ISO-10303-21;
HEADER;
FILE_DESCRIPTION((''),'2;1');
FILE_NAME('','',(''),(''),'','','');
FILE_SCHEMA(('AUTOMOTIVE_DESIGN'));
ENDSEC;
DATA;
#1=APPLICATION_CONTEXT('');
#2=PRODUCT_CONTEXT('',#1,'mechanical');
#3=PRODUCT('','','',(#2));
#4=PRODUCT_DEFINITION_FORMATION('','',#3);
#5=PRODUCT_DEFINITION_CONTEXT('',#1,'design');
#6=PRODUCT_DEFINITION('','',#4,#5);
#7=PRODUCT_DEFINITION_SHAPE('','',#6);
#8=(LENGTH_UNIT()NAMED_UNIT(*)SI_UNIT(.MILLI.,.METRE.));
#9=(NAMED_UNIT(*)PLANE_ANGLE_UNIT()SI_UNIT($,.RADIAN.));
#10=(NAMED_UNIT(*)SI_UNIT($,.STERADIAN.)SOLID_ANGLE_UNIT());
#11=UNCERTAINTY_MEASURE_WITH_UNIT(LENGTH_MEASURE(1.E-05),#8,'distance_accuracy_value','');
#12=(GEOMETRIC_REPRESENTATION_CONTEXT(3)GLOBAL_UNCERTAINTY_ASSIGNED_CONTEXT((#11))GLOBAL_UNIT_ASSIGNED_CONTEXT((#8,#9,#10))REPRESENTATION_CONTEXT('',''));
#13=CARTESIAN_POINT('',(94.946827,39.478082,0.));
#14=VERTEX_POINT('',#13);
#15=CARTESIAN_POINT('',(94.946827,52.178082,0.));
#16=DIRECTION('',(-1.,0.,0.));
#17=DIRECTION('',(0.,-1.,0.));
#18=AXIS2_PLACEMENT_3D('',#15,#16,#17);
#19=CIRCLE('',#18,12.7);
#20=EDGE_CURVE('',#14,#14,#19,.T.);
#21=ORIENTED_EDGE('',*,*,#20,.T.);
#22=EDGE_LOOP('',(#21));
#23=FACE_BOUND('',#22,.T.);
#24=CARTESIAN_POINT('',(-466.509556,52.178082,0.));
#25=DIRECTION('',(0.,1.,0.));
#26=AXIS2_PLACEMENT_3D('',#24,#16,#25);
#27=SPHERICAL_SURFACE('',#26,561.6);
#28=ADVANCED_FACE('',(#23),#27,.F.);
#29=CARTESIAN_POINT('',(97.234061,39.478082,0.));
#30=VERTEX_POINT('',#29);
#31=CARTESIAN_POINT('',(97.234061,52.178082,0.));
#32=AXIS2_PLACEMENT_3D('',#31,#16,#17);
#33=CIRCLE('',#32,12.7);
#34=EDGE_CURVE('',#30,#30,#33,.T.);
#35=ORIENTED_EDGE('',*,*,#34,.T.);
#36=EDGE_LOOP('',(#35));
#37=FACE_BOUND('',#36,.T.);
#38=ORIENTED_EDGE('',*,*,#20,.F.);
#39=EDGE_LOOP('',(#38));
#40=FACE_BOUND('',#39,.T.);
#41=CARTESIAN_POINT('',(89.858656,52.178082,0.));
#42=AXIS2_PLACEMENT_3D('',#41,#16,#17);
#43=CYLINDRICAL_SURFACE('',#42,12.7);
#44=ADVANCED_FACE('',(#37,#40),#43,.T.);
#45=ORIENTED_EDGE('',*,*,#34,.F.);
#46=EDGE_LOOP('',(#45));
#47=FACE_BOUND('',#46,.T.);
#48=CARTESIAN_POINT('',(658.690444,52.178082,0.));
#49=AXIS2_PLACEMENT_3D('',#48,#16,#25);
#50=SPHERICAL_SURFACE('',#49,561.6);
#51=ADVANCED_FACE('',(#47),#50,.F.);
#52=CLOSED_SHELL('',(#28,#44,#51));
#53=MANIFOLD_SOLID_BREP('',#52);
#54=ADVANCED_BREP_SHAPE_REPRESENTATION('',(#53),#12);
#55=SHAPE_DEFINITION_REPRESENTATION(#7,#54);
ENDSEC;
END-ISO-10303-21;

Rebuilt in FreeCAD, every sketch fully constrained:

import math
import FreeCAD as App
import Part
import Sketcher
from FreeCAD import Vector

doc = App.newDocument("Part")
body = doc.addObject("PartDesign::Body", "Body")

# Sketch on XY plane
sketch1 = body.newObject("Sketcher::SketchObject", "Sketch")
sketch1.AttachmentSupport = (doc.getObject("XY_Plane"), [""])
sketch1.MapMode = "FlatFace"
sketch1.addGeometry(Part.LineSegment(Vector(95.1, 52.2, 0), Vector(97.1, 52.2, 0)), False)
sketch1.addGeometry(Part.ArcOfCircle(Part.Circle(Vector(658.7, 52.2, 0), Vector(0, 0, 1), 561.6), math.radians(178.7), math.radians(180)), False)
sketch1.addGeometry(Part.LineSegment(Vector(97.2, 64.9, 0), Vector(94.9, 64.9, 0)), False)
sketch1.addGeometry(Part.ArcOfCircle(Part.Circle(Vector(-466.5, 52.2, 0), Vector(0, 0, 1), 561.6), math.radians(0), math.radians(1.3)), False)
sketch1.addGeometry(Part.LineSegment(Vector(-466.5, 52.2, 0), Vector(658.7, 52.2, 0)), True)  # axis
sketch1.addConstraint(Sketcher.Constraint("Coincident", 0, 2, 1, 2))
sketch1.addConstraint(Sketcher.Constraint("Coincident", 1, 1, 2, 1))
sketch1.addConstraint(Sketcher.Constraint("Coincident", 2, 2, 3, 2))
sketch1.addConstraint(Sketcher.Constraint("Coincident", 3, 1, 0, 1))
sketch1.addConstraint(Sketcher.Constraint("Horizontal", 0))
sketch1.addConstraint(Sketcher.Constraint("Horizontal", 2))
sketch1.addConstraint(Sketcher.Constraint("Horizontal", 4))
sketch1.addConstraint(Sketcher.Constraint("Coincident", 4, 1, 3, 3))
sketch1.addConstraint(Sketcher.Constraint("Coincident", 4, 2, 1, 3))
sketch1.addConstraint(Sketcher.Constraint("Horizontal", 3, 3, 0, 2))
sketch1.addConstraint(Sketcher.Constraint("DistanceX", 0, 1, 0, 2, 2.000001))
sketch1.addConstraint(Sketcher.Constraint("DistanceY", 0, 2, 2, 2, 12.7))
sketch1.addConstraint(Sketcher.Constraint("Radius", 1, 561.600012))
sketch1.addConstraint(Sketcher.Constraint("Radius", 3, 561.600004))
sketch1.addConstraint(Sketcher.Constraint("DistanceX", 3, 3, -1, 1, 466.50956))
sketch1.addConstraint(Sketcher.Constraint("DistanceY", -1, 1, 1, 3, 52.178082))
revolution = body.newObject("PartDesign::Revolution", "Revolution")
revolution.Profile = sketch1
revolution.ReferenceAxis = (sketch1, ["Axis0"])
revolution.Angle = 360

doc.recompute()
